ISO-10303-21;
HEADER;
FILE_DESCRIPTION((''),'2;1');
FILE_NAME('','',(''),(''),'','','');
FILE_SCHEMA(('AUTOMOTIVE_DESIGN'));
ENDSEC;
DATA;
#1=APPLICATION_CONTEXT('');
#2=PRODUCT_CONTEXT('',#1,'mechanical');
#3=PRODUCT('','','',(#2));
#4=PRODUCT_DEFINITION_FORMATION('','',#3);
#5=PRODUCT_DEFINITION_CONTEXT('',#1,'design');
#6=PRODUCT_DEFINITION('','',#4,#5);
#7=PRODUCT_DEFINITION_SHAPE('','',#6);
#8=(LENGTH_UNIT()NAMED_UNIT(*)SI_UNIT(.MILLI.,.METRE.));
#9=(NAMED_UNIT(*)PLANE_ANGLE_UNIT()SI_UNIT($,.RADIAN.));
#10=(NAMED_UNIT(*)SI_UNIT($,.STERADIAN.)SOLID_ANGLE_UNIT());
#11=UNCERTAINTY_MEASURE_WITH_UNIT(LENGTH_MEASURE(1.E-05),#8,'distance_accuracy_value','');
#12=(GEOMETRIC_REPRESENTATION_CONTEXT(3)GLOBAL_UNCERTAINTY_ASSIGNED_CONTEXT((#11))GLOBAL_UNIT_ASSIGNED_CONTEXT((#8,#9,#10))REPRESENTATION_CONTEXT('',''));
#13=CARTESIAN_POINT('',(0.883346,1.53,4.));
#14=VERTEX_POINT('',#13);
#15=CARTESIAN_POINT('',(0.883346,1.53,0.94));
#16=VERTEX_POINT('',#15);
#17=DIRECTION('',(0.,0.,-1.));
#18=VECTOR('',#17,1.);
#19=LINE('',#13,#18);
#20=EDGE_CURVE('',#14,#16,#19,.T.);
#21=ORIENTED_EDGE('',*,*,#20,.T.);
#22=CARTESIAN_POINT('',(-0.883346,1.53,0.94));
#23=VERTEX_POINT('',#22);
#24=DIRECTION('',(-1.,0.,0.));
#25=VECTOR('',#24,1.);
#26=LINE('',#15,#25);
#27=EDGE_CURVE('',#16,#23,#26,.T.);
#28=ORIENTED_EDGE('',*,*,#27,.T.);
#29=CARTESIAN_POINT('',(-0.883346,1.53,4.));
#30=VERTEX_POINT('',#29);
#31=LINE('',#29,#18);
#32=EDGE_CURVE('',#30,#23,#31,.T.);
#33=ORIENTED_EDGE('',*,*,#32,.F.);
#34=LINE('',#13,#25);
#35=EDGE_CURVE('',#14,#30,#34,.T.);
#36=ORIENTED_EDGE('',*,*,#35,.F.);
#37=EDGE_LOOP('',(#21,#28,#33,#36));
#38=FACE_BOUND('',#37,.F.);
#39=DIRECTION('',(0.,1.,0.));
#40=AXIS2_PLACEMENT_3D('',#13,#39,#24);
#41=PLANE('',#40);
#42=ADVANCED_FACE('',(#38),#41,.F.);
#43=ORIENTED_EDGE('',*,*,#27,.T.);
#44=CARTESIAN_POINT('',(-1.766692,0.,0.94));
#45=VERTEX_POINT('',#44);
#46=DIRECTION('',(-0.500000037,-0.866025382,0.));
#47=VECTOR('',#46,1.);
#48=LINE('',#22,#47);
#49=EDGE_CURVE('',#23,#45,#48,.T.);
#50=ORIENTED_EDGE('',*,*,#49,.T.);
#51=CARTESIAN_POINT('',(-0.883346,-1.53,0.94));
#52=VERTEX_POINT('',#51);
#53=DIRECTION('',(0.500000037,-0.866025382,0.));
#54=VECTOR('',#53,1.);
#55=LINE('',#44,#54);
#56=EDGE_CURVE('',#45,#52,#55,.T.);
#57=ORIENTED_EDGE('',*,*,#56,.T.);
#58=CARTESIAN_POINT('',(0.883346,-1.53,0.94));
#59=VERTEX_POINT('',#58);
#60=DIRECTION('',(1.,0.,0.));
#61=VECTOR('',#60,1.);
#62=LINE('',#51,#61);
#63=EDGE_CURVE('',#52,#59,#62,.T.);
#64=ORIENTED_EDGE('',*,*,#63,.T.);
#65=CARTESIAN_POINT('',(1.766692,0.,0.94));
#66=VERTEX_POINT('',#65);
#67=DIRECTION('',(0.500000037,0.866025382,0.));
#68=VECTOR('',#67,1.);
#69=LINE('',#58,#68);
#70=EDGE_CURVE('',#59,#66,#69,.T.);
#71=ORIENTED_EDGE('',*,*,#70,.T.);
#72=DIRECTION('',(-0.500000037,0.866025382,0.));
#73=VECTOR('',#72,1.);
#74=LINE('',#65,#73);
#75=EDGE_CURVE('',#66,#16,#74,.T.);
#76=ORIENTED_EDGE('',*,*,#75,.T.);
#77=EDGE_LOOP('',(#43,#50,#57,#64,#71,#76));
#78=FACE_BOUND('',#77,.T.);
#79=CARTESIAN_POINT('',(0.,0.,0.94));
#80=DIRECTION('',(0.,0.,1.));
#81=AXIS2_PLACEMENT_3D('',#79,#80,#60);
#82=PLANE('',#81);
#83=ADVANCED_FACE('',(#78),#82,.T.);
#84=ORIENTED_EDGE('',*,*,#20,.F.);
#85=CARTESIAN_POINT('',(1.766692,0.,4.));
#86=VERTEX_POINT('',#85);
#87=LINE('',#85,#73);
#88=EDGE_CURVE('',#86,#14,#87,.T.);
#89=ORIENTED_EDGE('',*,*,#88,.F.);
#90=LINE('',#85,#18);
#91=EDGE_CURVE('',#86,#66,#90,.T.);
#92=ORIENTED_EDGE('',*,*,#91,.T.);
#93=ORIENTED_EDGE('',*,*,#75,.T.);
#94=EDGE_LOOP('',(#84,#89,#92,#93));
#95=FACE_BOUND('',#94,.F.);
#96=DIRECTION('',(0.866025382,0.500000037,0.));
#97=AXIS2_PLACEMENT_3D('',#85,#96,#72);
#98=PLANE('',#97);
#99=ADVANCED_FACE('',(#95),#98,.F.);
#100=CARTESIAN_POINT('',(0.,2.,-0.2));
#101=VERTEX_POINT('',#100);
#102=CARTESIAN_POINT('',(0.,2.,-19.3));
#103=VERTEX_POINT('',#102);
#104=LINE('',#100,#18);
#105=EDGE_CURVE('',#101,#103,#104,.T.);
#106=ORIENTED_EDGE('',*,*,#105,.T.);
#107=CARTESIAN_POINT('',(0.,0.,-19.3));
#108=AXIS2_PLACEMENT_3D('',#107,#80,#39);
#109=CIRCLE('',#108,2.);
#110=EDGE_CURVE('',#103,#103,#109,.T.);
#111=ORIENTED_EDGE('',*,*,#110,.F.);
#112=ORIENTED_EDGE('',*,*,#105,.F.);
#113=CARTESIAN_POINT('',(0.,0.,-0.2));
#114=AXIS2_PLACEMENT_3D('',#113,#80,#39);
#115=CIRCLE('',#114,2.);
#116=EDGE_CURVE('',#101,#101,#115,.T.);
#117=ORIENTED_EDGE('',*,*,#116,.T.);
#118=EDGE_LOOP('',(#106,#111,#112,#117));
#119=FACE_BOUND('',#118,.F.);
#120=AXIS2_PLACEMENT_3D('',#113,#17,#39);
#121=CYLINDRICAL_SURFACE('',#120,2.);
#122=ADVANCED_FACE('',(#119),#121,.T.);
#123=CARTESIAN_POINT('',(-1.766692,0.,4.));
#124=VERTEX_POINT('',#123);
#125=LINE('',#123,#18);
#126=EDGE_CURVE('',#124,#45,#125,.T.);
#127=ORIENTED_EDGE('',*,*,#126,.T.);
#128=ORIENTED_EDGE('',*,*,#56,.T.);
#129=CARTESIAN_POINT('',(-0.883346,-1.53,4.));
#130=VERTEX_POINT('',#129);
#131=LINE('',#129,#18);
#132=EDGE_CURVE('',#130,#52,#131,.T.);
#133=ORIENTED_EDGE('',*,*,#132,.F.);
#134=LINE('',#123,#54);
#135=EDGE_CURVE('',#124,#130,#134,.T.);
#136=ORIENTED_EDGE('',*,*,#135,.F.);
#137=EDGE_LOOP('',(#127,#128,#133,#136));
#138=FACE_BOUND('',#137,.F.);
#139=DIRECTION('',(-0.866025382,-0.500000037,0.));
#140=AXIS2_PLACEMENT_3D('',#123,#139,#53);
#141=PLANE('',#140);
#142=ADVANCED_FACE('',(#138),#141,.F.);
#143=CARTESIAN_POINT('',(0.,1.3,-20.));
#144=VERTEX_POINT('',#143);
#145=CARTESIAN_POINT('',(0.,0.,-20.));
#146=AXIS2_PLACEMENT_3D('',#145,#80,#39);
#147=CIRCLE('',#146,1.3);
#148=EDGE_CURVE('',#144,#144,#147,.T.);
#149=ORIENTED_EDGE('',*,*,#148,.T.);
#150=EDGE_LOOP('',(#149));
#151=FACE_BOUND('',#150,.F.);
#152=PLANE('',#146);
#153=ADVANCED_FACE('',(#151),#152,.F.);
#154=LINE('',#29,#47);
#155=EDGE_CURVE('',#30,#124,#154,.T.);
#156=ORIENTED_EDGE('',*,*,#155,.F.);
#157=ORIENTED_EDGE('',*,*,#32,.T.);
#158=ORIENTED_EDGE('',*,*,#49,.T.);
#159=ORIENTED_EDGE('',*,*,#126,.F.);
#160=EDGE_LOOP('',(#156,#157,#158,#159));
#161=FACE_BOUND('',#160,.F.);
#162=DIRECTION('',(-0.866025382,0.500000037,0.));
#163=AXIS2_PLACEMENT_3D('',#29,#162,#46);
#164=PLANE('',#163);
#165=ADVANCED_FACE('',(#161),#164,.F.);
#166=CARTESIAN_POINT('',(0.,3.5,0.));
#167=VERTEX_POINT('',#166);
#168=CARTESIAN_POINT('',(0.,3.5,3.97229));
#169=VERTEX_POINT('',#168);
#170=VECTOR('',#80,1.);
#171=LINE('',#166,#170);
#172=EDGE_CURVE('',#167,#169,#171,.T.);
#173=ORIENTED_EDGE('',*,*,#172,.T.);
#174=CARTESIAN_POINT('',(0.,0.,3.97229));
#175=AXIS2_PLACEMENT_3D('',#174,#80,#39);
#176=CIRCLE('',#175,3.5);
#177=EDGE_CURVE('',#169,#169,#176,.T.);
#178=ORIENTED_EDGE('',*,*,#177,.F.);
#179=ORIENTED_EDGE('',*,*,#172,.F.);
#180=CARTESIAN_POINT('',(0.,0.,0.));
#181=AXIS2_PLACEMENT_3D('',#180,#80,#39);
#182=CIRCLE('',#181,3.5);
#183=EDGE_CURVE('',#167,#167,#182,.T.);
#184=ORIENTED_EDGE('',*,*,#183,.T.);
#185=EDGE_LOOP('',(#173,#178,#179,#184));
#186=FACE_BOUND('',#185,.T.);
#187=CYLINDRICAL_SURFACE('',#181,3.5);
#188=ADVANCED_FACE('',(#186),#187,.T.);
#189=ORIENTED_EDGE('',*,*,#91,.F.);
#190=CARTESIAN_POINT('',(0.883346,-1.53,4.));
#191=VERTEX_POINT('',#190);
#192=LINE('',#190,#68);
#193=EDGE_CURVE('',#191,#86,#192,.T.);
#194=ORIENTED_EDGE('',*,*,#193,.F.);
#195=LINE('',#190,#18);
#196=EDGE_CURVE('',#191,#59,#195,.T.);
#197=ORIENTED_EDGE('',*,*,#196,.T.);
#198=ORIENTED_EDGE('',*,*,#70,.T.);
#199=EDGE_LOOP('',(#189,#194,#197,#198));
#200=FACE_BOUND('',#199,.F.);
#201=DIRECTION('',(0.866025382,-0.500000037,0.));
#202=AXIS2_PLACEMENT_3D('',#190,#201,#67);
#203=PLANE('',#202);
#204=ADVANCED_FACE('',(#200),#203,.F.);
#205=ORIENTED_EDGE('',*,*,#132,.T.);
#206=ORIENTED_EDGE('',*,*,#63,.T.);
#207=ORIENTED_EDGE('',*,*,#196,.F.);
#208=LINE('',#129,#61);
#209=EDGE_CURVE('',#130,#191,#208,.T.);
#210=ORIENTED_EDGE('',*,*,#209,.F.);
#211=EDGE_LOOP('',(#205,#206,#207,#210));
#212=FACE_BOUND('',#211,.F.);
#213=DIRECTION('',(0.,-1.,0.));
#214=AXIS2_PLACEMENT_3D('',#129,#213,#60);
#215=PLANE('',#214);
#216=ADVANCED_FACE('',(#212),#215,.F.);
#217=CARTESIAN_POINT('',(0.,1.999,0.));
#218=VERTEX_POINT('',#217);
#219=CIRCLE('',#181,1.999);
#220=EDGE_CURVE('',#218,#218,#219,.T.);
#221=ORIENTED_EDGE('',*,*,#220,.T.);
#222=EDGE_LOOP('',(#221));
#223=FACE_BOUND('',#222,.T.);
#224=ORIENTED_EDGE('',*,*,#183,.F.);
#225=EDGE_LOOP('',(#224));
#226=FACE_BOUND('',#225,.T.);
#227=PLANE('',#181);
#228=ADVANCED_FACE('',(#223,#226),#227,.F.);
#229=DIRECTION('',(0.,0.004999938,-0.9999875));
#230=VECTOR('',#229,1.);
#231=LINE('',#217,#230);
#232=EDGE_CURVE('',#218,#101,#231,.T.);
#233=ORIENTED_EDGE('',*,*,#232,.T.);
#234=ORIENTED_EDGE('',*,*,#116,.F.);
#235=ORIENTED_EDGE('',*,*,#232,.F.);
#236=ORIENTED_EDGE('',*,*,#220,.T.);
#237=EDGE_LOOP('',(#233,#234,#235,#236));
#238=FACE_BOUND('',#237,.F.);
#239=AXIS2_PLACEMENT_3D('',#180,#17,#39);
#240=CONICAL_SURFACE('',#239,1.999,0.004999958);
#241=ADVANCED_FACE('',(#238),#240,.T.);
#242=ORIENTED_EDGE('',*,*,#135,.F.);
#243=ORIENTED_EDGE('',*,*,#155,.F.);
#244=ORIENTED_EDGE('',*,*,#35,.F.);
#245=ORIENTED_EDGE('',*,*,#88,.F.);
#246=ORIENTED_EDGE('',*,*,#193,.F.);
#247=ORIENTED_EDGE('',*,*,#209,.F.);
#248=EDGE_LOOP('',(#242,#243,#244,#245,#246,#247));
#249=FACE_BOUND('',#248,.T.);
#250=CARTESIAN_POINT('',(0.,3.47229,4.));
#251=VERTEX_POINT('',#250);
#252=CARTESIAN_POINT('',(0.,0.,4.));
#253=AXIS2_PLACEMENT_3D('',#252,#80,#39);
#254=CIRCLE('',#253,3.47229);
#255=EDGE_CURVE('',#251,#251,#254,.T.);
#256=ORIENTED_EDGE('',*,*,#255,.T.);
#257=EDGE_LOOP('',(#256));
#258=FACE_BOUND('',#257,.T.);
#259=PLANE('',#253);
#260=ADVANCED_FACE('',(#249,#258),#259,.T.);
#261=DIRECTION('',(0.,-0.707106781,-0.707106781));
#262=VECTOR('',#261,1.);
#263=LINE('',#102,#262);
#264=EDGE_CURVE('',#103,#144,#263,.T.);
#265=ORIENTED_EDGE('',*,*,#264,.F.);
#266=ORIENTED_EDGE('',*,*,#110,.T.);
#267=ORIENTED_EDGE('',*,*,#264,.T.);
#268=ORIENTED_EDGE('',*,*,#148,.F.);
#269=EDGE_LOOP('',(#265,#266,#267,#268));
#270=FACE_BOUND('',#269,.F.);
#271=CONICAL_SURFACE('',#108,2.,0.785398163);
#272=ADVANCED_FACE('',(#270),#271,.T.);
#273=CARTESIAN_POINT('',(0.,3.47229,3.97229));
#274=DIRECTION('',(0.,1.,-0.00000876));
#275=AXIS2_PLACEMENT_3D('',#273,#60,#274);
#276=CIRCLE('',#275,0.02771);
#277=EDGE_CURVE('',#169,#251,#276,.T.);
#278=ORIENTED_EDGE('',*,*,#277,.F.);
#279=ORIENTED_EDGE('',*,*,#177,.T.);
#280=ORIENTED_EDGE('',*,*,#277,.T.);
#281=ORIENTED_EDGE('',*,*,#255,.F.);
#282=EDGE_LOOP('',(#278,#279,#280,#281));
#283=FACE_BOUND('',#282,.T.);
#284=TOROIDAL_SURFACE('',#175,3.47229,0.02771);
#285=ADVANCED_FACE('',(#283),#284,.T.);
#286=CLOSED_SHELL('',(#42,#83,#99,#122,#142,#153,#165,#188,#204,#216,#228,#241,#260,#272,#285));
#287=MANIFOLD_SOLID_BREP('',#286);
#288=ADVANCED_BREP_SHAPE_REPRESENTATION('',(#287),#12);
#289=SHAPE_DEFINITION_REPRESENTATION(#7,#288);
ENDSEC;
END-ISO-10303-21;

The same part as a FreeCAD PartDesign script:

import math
import FreeCAD as App
import Part
import Sketcher
from FreeCAD import Vector
Q = App.Units.Quantity


def add_polygon(sketch, points):
    """Adds a closed chain of lines whose ends are joined by coincident constraints."""
    first, n = sketch.GeometryCount, len(points)
    for a, b in zip(points, points[1:] + points[:1]):
        sketch.addGeometry(Part.LineSegment(App.Vector(*a, 0), App.Vector(*b, 0)), False)
    for i in range(n):
        sketch.addConstraint(Sketcher.Constraint("Coincident", first + i, 2, first + (i + 1) % n, 1))

doc = App.newDocument("Part")
body = doc.addObject("PartDesign::Body", "Body")

# Sketch on YZ plane
sketch1 = body.newObject("Sketcher::SketchObject", "Sketch")
sketch1.AttachmentSupport = (doc.getObject("YZ_Plane"), [""])
sketch1.MapMode = "FlatFace"
sketch1.addGeometry(Part.LineSegment(Vector(1.999, 0, 0), Vector(3.5, 0, 0)), False)
sketch1.addGeometry(Part.LineSegment(Vector(3.5, 0, 0), Vector(3.5, 3.972, 0)), False)
sketch1.addGeometry(Part.ArcOfCircle(Part.Circle(Vector(3.472, 3.972, 0), Vector(0, 0, 1), 0.028), math.radians(0), math.radians(90)), False)
sketch1.addGeometry(Part.LineSegment(Vector(3.472, 4, 0), Vector(0, 4, 0)), False)
sketch1.addGeometry(Part.LineSegment(Vector(0, 4, 0), Vector(0, -20, 0)), False)
sketch1.addGeometry(Part.LineSegment(Vector(0, -20, 0), Vector(1.3, -20, 0)), False)
sketch1.addGeometry(Part.LineSegment(Vector(1.3, -20, 0), Vector(2, -19.3, 0)), False)
sketch1.addGeometry(Part.LineSegment(Vector(2, -19.3, 0), Vector(2, -0.2, 0)), False)
sketch1.addGeometry(Part.LineSegment(Vector(2, -0.2, 0), Vector(1.999, 0, 0)), False)
sketch1.addConstraint(Sketcher.Constraint("Coincident", 0, 2, 1, 1))
sketch1.addConstraint(Sketcher.Constraint("Coincident", 1, 2, 2, 1))
sketch1.addConstraint(Sketcher.Constraint("Coincident", 2, 2, 3, 1))
sketch1.addConstraint(Sketcher.Constraint("Coincident", 3, 2, 4, 1))
sketch1.addConstraint(Sketcher.Constraint("Coincident", 4, 2, 5, 1))
sketch1.addConstraint(Sketcher.Constraint("Coincident", 5, 2, 6, 1))
sketch1.addConstraint(Sketcher.Constraint("Coincident", 6, 2, 7, 1))
sketch1.addConstraint(Sketcher.Constraint("Coincident", 7, 2, 8, 1))
sketch1.addConstraint(Sketcher.Constraint("Coincident", 8, 2, 0, 1))
sketch1.addConstraint(Sketcher.Constraint("Horizontal", 0))
sketch1.addConstraint(Sketcher.Constraint("Vertical", 1))
sketch1.addConstraint(Sketcher.Constraint("Horizontal", 3))
sketch1.addConstraint(Sketcher.Constraint("Vertical", 4))
sketch1.addConstraint(Sketcher.Constraint("Horizontal", 5))
sketch1.addConstraint(Sketcher.Constraint("Vertical", 7))
sketch1.addConstraint(Sketcher.Constraint("PointOnObject", 0, 2, -1))
sketch1.addConstraint(Sketcher.Constraint("PointOnObject", 3, 2, -2))
sketch1.addConstraint(Sketcher.Constraint("Horizontal", 2, 3, 1, 2))
sketch1.addConstraint(Sketcher.Constraint("DistanceY", 4, 2, 4, 1, Q("24 mm")))
sketch1.addConstraint(Sketcher.Constraint("Angle", 6, Q("45 deg")))
sketch1.addConstraint(Sketcher.Constraint("DistanceX", 5, 1, 5, 2, Q("1.3 mm")))
sketch1.addConstraint(Sketcher.Constraint("DistanceY", 7, 1, 7, 2, Q("19.1 mm")))
sketch1.addConstraint(Sketcher.Constraint("DistanceY", -1, 1, 2, 2, Q("4 mm")))
sketch1.addConstraint(Sketcher.Constraint("DistanceX", -1, 1, 6, 2, Q("2 mm")))
sketch1.addConstraint(Sketcher.Constraint("DistanceX", -1, 1, 0, 2, Q("3.5 mm")))
sketch1.addConstraint(Sketcher.Constraint("DistanceX", 0, 1, 0, 2, Q("1.501 mm")))
sketch1.addConstraint(Sketcher.Constraint("Radius", 2, Q("0.02771 mm")))
sketch1.addConstraint(Sketcher.Constraint("DistanceX", 3, 2, 3, 1, Q("3.47229 mm")))
revolution = body.newObject("PartDesign::Revolution", "Revolution")
revolution.Profile = sketch1
revolution.ReferenceAxis = (sketch1, ["V_Axis"])
revolution.Angle = 360

# Sketch on XY plane
sketch2 = body.newObject("Sketcher::SketchObject", "Sketch001")
sketch2.AttachmentSupport = (doc.getObject("XY_Plane"), [""])
sketch2.MapMode = "FlatFace"
sketch2.AttachmentOffset = App.Placement(Vector(0, 0, 4), App.Rotation())
add_polygon(sketch2, [(1.8, 0), (0.9, 1.5), (-0.9, 1.5), (-1.8, 0), (-0.9, -1.5), (0.9, -1.5)])  # lines 0-5
sketch2.addConstraint(Sketcher.Constraint("Horizontal", 1))
sketch2.addConstraint(Sketcher.Constraint("Horizontal", 4))
sketch2.addConstraint(Sketcher.Constraint("Symmetric", 0, 2, 3, 2, -1, 1))
sketch2.addConstraint(Sketcher.Constraint("Symmetric", 2, 2, 5, 2, -1, 1))
sketch2.addConstraint(Sketcher.Constraint("PointOnObject", 2, 2, -1))
sketch2.addConstraint(Sketcher.Constraint("Parallel", 2, 5))
sketch2.addConstraint(Sketcher.Constraint("Vertical", 1, 2, 3, 2))
sketch2.addConstraint(Sketcher.Constraint("Angle", 0, Q("120.000002 deg")))
sketch2.addConstraint(Sketcher.Constraint("DistanceY", -1, 1, 0, 2, Q("1.53 mm")))
sketch2.addConstraint(Sketcher.Constraint("DistanceX", 1, 2, 1, 1, Q("1.766692 mm")))
pocket1 = body.newObject("PartDesign::Pocket", "Pocket")
pocket1.Profile = sketch2
pocket1.Length = 3.06

doc.recompute()
